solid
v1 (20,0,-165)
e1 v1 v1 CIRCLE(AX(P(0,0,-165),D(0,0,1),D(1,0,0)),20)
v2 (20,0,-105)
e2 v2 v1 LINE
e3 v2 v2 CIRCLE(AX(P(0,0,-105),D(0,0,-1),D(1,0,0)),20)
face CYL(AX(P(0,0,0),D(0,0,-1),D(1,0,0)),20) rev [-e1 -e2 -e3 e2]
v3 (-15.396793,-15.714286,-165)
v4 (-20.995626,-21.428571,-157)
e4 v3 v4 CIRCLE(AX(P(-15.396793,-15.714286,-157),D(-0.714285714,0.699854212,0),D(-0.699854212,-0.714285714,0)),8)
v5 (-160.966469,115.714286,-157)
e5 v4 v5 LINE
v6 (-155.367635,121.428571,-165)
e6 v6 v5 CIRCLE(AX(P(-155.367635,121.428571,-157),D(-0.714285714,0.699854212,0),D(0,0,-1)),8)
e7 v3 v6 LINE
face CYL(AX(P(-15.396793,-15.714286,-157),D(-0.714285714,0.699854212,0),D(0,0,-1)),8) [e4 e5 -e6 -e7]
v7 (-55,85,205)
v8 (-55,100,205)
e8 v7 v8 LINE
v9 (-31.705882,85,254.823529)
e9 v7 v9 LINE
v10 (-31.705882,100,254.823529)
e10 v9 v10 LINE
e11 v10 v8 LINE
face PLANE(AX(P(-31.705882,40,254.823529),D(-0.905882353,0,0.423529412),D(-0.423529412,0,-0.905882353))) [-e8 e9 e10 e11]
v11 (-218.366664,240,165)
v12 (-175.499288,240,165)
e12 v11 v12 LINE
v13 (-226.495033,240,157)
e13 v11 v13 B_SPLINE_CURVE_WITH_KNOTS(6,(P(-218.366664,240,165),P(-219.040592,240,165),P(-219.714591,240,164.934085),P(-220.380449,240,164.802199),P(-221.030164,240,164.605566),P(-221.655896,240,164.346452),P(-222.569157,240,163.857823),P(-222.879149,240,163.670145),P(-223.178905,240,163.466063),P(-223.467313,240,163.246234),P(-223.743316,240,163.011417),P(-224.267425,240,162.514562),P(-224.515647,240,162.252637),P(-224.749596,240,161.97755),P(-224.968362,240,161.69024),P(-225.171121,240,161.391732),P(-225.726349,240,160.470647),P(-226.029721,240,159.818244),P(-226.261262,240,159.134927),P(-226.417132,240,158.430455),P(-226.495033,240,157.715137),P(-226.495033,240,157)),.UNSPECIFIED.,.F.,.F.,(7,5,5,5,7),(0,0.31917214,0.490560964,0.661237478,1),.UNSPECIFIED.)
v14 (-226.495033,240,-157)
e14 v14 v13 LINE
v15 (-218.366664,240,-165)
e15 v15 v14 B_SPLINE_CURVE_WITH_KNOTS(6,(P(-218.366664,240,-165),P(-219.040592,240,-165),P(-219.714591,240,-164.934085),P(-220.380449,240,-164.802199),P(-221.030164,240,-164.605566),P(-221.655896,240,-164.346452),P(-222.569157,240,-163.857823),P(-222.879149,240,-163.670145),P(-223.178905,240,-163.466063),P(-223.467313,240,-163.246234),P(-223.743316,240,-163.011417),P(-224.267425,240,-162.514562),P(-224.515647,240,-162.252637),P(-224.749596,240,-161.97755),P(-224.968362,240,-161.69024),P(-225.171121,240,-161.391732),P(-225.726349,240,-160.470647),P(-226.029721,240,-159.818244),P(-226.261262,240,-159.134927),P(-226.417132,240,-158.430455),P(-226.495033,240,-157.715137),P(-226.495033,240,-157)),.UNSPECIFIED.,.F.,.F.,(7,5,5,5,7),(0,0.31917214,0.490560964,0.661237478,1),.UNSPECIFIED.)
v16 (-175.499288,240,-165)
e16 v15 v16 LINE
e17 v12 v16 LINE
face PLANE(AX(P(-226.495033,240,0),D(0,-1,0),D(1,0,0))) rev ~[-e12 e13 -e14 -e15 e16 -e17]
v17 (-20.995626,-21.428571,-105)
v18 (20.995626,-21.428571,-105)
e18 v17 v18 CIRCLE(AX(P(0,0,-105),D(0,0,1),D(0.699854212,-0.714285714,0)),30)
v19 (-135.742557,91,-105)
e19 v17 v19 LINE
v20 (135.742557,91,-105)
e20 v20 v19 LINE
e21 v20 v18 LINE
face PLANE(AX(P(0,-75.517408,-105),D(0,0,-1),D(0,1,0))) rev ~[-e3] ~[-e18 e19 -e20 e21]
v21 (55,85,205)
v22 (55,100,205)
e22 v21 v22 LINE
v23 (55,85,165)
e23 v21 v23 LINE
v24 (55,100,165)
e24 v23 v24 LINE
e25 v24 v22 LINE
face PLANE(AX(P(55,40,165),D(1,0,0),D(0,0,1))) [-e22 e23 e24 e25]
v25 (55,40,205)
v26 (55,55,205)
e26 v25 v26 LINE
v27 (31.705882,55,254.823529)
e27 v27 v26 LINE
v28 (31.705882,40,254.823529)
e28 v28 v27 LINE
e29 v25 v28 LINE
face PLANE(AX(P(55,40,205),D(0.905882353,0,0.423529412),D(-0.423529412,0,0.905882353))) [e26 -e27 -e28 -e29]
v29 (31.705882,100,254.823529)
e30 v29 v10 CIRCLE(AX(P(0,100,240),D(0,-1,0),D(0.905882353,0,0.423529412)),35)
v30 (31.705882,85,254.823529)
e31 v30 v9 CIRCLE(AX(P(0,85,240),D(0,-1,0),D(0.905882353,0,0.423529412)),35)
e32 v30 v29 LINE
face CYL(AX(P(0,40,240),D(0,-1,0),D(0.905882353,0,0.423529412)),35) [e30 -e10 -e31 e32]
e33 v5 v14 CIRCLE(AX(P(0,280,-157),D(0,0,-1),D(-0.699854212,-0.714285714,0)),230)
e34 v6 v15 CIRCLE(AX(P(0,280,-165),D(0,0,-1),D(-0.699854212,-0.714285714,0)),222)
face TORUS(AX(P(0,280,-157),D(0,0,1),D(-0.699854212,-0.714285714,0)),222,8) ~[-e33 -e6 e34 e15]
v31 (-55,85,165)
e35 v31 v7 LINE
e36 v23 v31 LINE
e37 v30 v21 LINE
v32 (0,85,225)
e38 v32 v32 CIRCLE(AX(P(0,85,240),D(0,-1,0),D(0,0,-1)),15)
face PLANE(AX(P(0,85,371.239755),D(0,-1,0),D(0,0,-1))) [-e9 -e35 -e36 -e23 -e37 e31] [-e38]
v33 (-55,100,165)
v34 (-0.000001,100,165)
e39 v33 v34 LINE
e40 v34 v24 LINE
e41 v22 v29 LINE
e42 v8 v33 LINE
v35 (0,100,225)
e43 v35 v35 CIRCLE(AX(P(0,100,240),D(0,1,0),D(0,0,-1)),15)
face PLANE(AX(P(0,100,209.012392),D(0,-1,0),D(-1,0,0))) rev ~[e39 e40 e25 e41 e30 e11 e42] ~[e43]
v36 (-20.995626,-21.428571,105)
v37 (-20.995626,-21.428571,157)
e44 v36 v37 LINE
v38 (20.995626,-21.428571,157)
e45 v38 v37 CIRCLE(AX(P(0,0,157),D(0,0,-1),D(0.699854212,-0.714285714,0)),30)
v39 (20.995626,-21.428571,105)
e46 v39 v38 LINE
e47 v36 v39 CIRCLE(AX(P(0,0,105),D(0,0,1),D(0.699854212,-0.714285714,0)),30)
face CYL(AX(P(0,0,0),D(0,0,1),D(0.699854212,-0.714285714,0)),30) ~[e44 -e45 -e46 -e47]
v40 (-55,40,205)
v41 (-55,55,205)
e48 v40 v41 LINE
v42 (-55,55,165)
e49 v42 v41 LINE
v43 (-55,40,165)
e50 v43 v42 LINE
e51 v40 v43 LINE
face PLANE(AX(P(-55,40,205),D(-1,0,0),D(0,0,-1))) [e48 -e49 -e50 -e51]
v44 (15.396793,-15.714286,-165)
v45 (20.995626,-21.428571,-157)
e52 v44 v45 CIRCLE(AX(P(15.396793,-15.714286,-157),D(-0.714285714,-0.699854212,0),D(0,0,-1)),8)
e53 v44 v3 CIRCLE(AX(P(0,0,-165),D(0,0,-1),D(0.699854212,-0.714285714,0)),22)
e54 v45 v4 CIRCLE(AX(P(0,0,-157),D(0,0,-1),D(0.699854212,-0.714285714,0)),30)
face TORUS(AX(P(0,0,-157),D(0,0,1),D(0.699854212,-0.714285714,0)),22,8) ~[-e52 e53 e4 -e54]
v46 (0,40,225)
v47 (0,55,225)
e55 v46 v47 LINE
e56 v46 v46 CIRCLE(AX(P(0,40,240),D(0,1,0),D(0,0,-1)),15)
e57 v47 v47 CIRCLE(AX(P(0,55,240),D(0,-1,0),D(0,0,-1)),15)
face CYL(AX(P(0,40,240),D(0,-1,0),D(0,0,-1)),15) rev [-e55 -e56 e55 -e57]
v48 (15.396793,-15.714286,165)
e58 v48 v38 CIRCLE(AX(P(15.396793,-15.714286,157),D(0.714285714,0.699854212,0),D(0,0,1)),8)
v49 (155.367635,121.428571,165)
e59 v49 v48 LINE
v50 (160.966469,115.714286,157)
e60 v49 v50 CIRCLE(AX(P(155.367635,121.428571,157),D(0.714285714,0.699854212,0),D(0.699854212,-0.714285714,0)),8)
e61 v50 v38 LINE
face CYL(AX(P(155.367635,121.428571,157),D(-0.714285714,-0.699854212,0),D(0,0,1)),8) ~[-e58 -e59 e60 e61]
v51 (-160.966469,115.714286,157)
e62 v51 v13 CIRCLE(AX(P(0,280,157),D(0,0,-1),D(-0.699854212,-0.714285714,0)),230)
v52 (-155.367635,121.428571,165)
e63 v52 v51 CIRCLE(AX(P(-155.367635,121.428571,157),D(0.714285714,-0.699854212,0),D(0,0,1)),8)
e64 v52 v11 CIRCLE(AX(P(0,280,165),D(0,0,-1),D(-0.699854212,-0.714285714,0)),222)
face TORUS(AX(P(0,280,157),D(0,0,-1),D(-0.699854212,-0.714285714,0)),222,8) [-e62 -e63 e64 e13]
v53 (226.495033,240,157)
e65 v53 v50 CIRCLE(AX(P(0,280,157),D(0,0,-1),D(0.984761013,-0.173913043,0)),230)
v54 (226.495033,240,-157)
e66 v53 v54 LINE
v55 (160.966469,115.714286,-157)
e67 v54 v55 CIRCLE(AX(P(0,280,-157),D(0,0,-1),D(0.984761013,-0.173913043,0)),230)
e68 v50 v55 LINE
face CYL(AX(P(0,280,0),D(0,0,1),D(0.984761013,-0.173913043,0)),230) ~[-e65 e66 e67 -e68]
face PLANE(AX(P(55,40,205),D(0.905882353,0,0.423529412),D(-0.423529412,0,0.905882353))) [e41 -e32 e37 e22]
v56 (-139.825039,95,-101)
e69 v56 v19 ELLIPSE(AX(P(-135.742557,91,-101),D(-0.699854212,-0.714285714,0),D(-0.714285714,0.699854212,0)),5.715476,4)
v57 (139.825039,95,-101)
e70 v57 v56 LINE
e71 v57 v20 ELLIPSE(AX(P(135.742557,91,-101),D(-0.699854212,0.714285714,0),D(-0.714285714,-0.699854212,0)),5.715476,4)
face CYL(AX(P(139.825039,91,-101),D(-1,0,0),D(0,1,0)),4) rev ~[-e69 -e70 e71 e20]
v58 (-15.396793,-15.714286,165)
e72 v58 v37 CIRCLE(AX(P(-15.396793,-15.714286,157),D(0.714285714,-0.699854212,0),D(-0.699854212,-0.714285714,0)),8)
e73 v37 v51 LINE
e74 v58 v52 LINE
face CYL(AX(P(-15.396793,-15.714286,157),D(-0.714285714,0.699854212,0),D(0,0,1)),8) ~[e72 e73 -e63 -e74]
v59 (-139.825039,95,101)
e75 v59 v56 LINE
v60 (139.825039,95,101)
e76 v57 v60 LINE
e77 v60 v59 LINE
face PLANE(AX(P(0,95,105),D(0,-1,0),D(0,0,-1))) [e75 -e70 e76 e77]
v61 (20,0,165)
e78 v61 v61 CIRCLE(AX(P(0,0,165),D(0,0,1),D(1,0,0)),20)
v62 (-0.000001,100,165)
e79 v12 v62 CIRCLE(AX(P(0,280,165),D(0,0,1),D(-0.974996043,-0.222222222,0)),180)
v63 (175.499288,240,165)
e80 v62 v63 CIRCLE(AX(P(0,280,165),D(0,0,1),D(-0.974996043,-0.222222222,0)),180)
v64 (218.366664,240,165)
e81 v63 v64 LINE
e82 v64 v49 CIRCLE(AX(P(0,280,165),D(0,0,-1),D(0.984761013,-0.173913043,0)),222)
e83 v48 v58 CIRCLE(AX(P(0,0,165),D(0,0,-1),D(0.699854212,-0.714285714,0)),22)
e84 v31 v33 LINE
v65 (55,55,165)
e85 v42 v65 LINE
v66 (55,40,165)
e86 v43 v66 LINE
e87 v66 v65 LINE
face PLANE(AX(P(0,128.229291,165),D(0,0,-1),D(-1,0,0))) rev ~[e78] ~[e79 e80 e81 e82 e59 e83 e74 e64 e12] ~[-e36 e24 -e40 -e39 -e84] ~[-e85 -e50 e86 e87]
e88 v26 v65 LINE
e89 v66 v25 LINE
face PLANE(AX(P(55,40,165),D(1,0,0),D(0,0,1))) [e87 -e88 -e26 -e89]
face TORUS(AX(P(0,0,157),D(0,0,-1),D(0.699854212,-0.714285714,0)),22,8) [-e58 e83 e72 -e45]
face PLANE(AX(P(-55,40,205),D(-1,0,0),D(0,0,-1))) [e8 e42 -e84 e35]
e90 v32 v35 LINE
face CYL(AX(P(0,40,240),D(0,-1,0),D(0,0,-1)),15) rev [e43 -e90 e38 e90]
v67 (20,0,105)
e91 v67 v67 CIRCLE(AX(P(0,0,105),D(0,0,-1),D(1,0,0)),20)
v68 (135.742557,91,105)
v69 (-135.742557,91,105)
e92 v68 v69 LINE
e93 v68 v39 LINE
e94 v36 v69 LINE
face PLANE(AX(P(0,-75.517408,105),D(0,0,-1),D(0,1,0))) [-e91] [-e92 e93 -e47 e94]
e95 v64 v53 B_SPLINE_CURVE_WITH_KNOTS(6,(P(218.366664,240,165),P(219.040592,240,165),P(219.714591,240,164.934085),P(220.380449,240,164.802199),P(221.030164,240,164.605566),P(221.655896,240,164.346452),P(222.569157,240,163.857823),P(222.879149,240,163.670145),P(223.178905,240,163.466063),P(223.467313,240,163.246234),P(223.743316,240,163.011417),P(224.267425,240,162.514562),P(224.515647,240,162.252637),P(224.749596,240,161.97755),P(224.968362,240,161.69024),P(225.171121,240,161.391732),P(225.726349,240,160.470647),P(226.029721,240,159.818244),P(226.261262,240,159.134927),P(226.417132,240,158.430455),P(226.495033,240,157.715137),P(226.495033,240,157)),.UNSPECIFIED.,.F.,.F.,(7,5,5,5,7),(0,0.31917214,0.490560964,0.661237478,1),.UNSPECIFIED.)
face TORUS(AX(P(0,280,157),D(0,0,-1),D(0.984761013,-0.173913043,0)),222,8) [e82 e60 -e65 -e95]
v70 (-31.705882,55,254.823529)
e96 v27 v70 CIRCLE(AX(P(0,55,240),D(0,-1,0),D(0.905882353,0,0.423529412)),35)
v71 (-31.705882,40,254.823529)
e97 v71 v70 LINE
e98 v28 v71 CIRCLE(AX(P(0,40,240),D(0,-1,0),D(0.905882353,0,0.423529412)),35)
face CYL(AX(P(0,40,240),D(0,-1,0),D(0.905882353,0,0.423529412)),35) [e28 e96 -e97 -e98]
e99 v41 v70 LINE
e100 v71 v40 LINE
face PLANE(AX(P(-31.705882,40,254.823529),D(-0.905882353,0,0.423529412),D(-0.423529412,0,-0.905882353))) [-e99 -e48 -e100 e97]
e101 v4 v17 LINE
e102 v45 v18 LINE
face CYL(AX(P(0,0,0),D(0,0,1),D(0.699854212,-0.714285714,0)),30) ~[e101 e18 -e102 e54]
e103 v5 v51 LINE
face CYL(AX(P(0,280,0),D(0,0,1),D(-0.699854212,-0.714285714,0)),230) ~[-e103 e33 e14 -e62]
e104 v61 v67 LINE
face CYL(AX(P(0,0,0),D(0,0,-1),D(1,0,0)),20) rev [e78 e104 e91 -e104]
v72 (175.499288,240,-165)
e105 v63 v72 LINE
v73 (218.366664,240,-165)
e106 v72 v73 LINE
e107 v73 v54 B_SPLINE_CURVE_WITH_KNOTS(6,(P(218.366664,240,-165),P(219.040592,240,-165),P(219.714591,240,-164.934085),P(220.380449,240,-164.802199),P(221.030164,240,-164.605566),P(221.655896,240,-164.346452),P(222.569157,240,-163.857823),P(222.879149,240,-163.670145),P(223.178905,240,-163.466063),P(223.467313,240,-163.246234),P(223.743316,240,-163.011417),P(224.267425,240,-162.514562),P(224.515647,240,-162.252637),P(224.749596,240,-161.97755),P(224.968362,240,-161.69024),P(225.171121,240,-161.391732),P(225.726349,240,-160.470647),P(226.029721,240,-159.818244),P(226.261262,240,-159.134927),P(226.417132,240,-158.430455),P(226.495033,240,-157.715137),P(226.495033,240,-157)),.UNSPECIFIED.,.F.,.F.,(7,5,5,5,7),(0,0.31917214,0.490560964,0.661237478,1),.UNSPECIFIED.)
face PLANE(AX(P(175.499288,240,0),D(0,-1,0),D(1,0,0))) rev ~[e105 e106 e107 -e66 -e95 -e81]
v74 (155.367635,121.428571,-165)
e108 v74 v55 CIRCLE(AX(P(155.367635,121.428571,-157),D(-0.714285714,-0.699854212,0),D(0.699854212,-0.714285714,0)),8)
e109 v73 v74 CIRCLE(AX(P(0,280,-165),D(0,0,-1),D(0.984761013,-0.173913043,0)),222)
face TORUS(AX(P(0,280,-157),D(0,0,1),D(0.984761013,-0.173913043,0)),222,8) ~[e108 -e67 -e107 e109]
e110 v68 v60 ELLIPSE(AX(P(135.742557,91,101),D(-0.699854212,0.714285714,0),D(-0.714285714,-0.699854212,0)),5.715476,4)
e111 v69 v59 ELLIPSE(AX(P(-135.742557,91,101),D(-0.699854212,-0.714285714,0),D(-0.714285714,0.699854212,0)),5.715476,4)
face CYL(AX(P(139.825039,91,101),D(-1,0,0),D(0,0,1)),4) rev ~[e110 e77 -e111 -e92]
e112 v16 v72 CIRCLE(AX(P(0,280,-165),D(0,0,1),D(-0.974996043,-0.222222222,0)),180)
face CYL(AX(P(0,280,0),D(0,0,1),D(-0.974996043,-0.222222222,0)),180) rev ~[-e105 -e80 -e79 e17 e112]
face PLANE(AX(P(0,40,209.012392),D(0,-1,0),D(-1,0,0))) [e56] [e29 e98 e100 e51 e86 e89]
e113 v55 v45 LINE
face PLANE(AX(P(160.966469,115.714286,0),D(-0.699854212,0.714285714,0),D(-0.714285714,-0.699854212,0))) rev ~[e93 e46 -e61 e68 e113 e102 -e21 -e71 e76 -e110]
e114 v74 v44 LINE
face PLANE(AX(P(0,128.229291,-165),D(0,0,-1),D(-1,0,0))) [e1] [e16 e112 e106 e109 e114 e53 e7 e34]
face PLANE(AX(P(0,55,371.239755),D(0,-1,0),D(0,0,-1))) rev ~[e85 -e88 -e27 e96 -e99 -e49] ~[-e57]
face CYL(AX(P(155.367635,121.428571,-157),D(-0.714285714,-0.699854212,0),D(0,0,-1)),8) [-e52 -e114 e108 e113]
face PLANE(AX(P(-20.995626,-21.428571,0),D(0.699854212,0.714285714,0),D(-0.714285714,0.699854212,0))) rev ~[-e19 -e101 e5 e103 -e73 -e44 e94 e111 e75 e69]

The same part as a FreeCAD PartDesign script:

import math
import FreeCAD as App
import Part
import Sketcher
from FreeCAD import Vector


def edges_at(feature, points):
    """Names of the edges that pass closest to the given points."""
    edges = feature.Shape.Edges
    near = lambda p: min(range(len(edges)), key=lambda i: edges[i].distToShape(Part.Vertex(*p))[0])
    return sorted({f"Edge{near(p) + 1}" for p in points})

doc = App.newDocument("Part")
body = doc.addObject("PartDesign::Body", "Body")

# Sketch on XY plane
sketch1 = body.newObject("Sketcher::SketchObject", "Sketch")
sketch1.AttachmentSupport = (doc.getObject("XY_Plane"), [""])
sketch1.MapMode = "FlatFace"
sketch1.addGeometry([
    Part.LineSegment(Vector(-175, 240, 0), Vector(-226, 240, 0)),  # 0
    Part.ArcOfCircle(Part.Circle(Vector(0, 280, 0), Vector(0, 0, 1), 230), math.radians(-170), math.radians(-134)),  # 1
    Part.LineSegment(Vector(-161, 116, 0), Vector(-21, -21, 0)),  # 2
    Part.ArcOfCircle(Part.Circle(Vector(0, 0, 0), Vector(0, 0, 1), 30), math.radians(-134), math.radians(-46)),  # 3
    Part.LineSegment(Vector(21, -21, 0), Vector(161, 116, 0)),  # 4
    Part.ArcOfCircle(Part.Circle(Vector(0, 280, 0), Vector(0, 0, 1), 230), math.radians(-46), math.radians(-10)),  # 5
    Part.LineSegment(Vector(226, 240, 0), Vector(175, 240, 0)),  # 6
    Part.ArcOfCircle(Part.Circle(Vector(0, 280, 0), Vector(0, 0, 1), 180), math.radians(-167), math.radians(-13)),  # 7
    Part.Circle(Vector(0, 0, 0), Vector(0, 0, 1), 20),  # 8
], False)
sketch1.addConstraint([
    Sketcher.Constraint("Coincident", 0, 2, 1, 1),
    Sketcher.Constraint("Tangent", 1, 2, 2, 1),
    Sketcher.Constraint("Tangent", 2, 2, 3, 1),
    Sketcher.Constraint("Tangent", 3, 2, 4, 1),
    Sketcher.Constraint("Tangent", 4, 2, 5, 1),
    Sketcher.Constraint("Coincident", 5, 2, 6, 1),
    Sketcher.Constraint("Coincident", 6, 2, 7, 2),
    Sketcher.Constraint("Coincident", 7, 1, 0, 1),
    Sketcher.Constraint("Horizontal", 0),
    Sketcher.Constraint("Horizontal", 6),
    Sketcher.Constraint("Coincident", 3, 3, -1, 1),
    Sketcher.Constraint("Coincident", 8, 3, -1, 1),
    Sketcher.Constraint("Coincident", 5, 3, 1, 3),
    Sketcher.Constraint("Coincident", 7, 3, 1, 3),
    Sketcher.Constraint("Equal", 1, 5),
    Sketcher.Constraint("Symmetric", 0, 2, 5, 2, -2),
    Sketcher.Constraint("Diameter", 8, 40.0),
    Sketcher.Constraint("Radius", 1, 230.0),
    Sketcher.Constraint("Radius", 3, 30.0),
    Sketcher.Constraint("Radius", 7, 180.0),
    Sketcher.Constraint("DistanceY", -1, 1, 1, 3, 280.0),
    Sketcher.Constraint("DistanceY", -1, 1, 0, 2, 240.0),
])
pad1 = body.newObject("PartDesign::Pad", "Pad")
pad1.Profile = sketch1
pad1.Length = 330
pad1.Midplane = True

# Sketch on XZ plane
sketch2 = body.newObject("Sketcher::SketchObject", "Sketch001")
sketch2.AttachmentSupport = (doc.getObject("XZ_Plane"), [""])
sketch2.MapMode = "FlatFace"
sketch2.AttachmentOffset = App.Placement(Vector(0, 0, -40), App.Rotation())
sketch2.addGeometry([
    Part.LineSegment(Vector(55, 165, 0), Vector(-55, 165, 0)),  # 0
    Part.LineSegment(Vector(-55, 165, 0), Vector(-55, 205, 0)),  # 1
    Part.LineSegment(Vector(-55, 205, 0), Vector(-32, 255, 0)),  # 2
    Part.ArcOfCircle(Part.Circle(Vector(0, 240, 0), Vector(0, 0, 1), 35), math.radians(25), math.radians(155)),  # 3
    Part.LineSegment(Vector(32, 255, 0), Vector(55, 205, 0)),  # 4
    Part.LineSegment(Vector(55, 205, 0), Vector(55, 165, 0)),  # 5
    Part.Circle(Vector(0, 240, 0), Vector(0, 0, 1), 15),  # 6
], False)
sketch2.addConstraint([
    Sketcher.Constraint("Coincident", 0, 2, 1, 1),
    Sketcher.Constraint("Coincident", 1, 2, 2, 1),
    Sketcher.Constraint("Tangent", 2, 2, 3, 2),
    Sketcher.Constraint("Tangent", 3, 1, 4, 1),
    Sketcher.Constraint("Coincident", 4, 2, 5, 1),
    Sketcher.Constraint("Coincident", 5, 2, 0, 1),
    Sketcher.Constraint("Horizontal", 0),
    Sketcher.Constraint("Vertical", 1),
    Sketcher.Constraint("Vertical", 5),
    Sketcher.Constraint("Coincident", 6, 3, 3, 3),
    Sketcher.Constraint("Symmetric", 2, 2, 3, 1, -2),
    Sketcher.Constraint("Horizontal", 1, 2, 4, 2),
    Sketcher.Constraint("Diameter", 6, 30.0),
    Sketcher.Constraint("Radius", 3, 35.0),
    Sketcher.Constraint("DistanceX", 0, 2, 0, 1, 110.0),
    Sketcher.Constraint("DistanceY", 1, 1, 1, 2, 40.0),
    Sketcher.Constraint("Distance", 2, 55.0),
    Sketcher.Constraint("DistanceY", -1, 1, 3, 3, 240.0),
])
pad2 = body.newObject("PartDesign::Pad", "Pad001")
pad2.Profile = sketch2
pad2.Length = 60
pad2.Reversed = True

# Sketch on YZ plane
sketch3 = body.newObject("Sketcher::SketchObject", "Sketch002")
sketch3.AttachmentSupport = (doc.getObject("YZ_Plane"), [""])
sketch3.MapMode = "FlatFace"
sketch3.addGeometry([
    Part.LineSegment(Vector(85, 371, 0), Vector(55, 371, 0)),
    Part.LineSegment(Vector(55, 371, 0), Vector(55, 165, 0)),
    Part.LineSegment(Vector(55, 165, 0), Vector(85, 165, 0)),
    Part.LineSegment(Vector(85, 165, 0), Vector(85, 371, 0)),
], False)
sketch3.addConstraint([
    Sketcher.Constraint("Coincident", 0, 2, 1, 1),
    Sketcher.Constraint("Coincident", 1, 2, 2, 1),
    Sketcher.Constraint("Coincident", 2, 2, 3, 1),
    Sketcher.Constraint("Coincident", 3, 2, 0, 1),
    Sketcher.Constraint("Horizontal", 0),
    Sketcher.Constraint("Vertical", 1),
    Sketcher.Constraint("Horizontal", 2),
    Sketcher.Constraint("Vertical", 3),
    Sketcher.Constraint("DistanceX", 0, 2, 0, 1, 30.0),
    Sketcher.Constraint("DistanceX", -1, 1, 0, 2, 55.0),
    Sketcher.Constraint("DistanceY", -1, 1, 1, 2, 165.0),
    Sketcher.Constraint("DistanceY", 1, 2, 1, 1, 206.239755),
])
pocket1 = body.newObject("PartDesign::Pocket", "Pocket")
pocket1.Profile = sketch3
pocket1.Length = 347
pocket1.Midplane = True

# Sketch on YZ plane
sketch4 = body.newObject("Sketcher::SketchObject", "Sketch003")
sketch4.AttachmentSupport = (doc.getObject("YZ_Plane"), [""])
sketch4.MapMode = "FlatFace"
sketch4.addGeometry([
    Part.LineSegment(Vector(95, 105, 0), Vector(-76, 105, 0)),
    Part.LineSegment(Vector(-76, 105, 0), Vector(-76, -105, 0)),
    Part.LineSegment(Vector(-76, -105, 0), Vector(95, -105, 0)),
    Part.LineSegment(Vector(95, -105, 0), Vector(95, 105, 0)),
], False)
sketch4.addConstraint([
    Sketcher.Constraint("Coincident", 0, 2, 1, 1),
    Sketcher.Constraint("Coincident", 1, 2, 2, 1),
    Sketcher.Constraint("Coincident", 2, 2, 3, 1),
    Sketcher.Constraint("Coincident", 3, 2, 0, 1),
    Sketcher.Constraint("Horizontal", 0),
    Sketcher.Constraint("Vertical", 1),
    Sketcher.Constraint("Horizontal", 2),
    Sketcher.Constraint("Vertical", 3),
    Sketcher.Constraint("DistanceY", 1, 2, 1, 1, 210.0),
    Sketcher.Constraint("DistanceY", -1, 1, 0, 2, 105.0),
    Sketcher.Constraint("DistanceX", -1, 1, 2, 2, 95.0),
    Sketcher.Constraint("DistanceX", 0, 2, 0, 1, 170.517408),
])
pocket2 = body.newObject("PartDesign::Pocket", "Pocket001")
pocket2.Profile = sketch4
pocket2.Length = 2109
pocket2.Midplane = True
doc.recompute()

fillet = body.newObject("PartDesign::Fillet", "Fillet")
fillet.Base = (pocket2, edges_at(pocket2, [(0, 95, 105), (0, 95, -105)]))
fillet.Radius = 4
doc.recompute()

fillet2 = body.newObject("PartDesign::Fillet", "Fillet001")
fillet2.Base = (fillet, edges_at(fillet, [
    (-90.981, 47.143, -165),
    (-203.454, 172.731, -165),
    (-203.454, 172.731, 165),
    (-90.981, 47.143, 165),
    (0, -30, 165),
    (90.981, 47.143, 165),
    (203.454, 172.731, 165),
    (203.454, 172.731, -165),
    (90.981, 47.143, -165),
    (0, -30, -165),
]))
fillet2.Radius = 8

doc.recompute()
